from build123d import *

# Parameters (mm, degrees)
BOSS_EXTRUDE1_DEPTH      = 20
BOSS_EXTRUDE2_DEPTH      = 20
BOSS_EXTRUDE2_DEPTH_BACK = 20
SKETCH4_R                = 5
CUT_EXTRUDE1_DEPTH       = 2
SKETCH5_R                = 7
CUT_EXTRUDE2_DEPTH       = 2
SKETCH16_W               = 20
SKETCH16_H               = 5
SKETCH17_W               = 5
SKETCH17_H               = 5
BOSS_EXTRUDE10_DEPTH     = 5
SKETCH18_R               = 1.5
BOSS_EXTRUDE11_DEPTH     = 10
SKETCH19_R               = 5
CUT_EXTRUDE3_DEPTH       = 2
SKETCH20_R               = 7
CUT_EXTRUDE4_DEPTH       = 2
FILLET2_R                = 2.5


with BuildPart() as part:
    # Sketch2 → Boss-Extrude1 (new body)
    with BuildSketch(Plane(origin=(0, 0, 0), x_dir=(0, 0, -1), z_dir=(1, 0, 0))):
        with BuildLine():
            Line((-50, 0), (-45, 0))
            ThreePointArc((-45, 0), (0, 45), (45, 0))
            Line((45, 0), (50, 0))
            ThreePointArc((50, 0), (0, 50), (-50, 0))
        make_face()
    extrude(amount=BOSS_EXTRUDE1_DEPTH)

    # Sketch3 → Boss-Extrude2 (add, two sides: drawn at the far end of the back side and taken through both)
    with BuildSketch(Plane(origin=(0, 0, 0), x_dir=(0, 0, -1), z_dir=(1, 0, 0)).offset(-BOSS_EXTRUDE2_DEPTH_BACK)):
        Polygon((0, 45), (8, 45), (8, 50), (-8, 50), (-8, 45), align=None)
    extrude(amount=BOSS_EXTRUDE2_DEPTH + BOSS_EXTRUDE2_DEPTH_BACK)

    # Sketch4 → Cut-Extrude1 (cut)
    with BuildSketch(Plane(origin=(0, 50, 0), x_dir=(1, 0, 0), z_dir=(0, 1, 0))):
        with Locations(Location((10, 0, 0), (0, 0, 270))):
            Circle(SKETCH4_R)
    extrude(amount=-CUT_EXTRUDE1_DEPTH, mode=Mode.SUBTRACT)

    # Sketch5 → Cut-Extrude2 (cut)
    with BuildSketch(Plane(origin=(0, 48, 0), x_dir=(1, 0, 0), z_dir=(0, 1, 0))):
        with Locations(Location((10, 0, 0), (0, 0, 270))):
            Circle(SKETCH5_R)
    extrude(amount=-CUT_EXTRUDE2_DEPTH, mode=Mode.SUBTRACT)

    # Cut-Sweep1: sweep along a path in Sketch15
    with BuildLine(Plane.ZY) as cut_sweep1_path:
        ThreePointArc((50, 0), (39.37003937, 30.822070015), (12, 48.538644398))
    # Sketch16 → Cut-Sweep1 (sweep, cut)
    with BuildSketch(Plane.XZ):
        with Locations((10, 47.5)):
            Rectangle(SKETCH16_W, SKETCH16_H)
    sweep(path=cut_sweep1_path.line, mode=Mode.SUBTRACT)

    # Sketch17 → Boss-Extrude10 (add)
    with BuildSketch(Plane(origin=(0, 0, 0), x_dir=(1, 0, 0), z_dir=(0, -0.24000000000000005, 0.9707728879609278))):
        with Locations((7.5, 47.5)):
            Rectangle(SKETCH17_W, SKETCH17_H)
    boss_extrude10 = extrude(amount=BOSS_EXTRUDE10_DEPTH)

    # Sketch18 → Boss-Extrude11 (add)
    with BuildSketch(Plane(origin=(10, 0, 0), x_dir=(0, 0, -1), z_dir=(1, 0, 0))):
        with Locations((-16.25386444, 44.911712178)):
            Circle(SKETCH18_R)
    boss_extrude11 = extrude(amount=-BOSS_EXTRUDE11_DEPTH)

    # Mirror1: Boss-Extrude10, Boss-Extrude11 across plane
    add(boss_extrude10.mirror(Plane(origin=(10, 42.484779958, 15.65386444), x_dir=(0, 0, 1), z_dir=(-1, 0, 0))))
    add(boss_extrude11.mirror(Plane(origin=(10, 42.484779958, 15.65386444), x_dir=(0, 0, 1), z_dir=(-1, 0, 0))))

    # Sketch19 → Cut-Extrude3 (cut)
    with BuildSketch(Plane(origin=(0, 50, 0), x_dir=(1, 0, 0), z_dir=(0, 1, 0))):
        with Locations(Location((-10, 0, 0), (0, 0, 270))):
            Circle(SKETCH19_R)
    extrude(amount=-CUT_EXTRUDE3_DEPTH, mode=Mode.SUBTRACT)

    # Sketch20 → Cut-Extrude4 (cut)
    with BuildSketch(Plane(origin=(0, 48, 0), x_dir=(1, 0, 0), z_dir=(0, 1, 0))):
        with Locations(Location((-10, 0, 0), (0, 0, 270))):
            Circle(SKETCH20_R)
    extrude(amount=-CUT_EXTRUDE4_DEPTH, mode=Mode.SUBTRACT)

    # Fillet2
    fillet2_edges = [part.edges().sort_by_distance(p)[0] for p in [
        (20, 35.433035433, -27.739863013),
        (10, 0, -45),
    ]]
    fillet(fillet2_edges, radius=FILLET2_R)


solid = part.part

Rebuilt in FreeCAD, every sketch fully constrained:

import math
import FreeCAD as App
import Part
import Sketcher
Q = App.Units.Quantity


def edges_at(feature, points):
    """Names of the edges that pass closest to the given points."""
    edges = feature.Shape.Edges
    near = lambda p: min(range(len(edges)), key=lambda i: edges[i].distToShape(Part.Vertex(*p))[0])
    return sorted({f"Edge{near(p) + 1}" for p in points})

doc = App.newDocument("Part")
body = doc.addObject("PartDesign::Body", "Body")

sketch1 = body.newObject("Sketcher::SketchObject", "Sketch")
sketch1.AttachmentSupport = (doc.getObject("YZ_Plane"), [""])
sketch1.MapMode = "FlatFace"
sketch1.addGeometry(Part.LineSegment(App.Vector(0, 50, 0), App.Vector(0, 45, 0)), False)
sketch1.addGeometry(Part.ArcOfCircle(Part.Circle(App.Vector(0, 0, 0), App.Vector(0, 0, 1), 45), math.radians(-90), math.radians(90)), False)
sketch1.addGeometry(Part.LineSegment(App.Vector(0, -45, 0), App.Vector(0, -50, 0)), False)
sketch1.addGeometry(Part.ArcOfCircle(Part.Circle(App.Vector(0, 0, 0), App.Vector(0, 0, 1), 50), math.radians(-90), math.radians(90)), False)
sketch1.addConstraint(Sketcher.Constraint("Coincident", 0, 2, 1, 2))
sketch1.addConstraint(Sketcher.Constraint("Coincident", 1, 1, 2, 1))
sketch1.addConstraint(Sketcher.Constraint("Coincident", 2, 2, 3, 1))
sketch1.addConstraint(Sketcher.Constraint("Coincident", 3, 2, 0, 1))
sketch1.addConstraint(Sketcher.Constraint("Vertical", 0))
sketch1.addConstraint(Sketcher.Constraint("Vertical", 2))
sketch1.addConstraint(Sketcher.Constraint("Coincident", 1, 3, -1, 1))
sketch1.addConstraint(Sketcher.Constraint("Coincident", 3, 3, -1, 1))
sketch1.addConstraint(Sketcher.Constraint("PointOnObject", 0, 2, -2))
sketch1.addConstraint(Sketcher.Constraint("PointOnObject", 1, 1, -2))
sketch1.addConstraint(Sketcher.Constraint("Radius", 1, Q("45 mm")))
sketch1.addConstraint(Sketcher.Constraint("Radius", 3, Q("50 mm")))
pad1 = body.newObject("PartDesign::Pad", "Pad")
pad1.Profile = sketch1
pad1.Length = 20

sketch2 = body.newObject("Sketcher::SketchObject", "Sketch001")
sketch2.AttachmentSupport = (doc.getObject("YZ_Plane"), [""])
sketch2.MapMode = "FlatFace"
sketch2.addGeometry(Part.LineSegment(App.Vector(45, -8, 0), App.Vector(50, -8, 0)), False)
sketch2.addGeometry(Part.LineSegment(App.Vector(50, -8, 0), App.Vector(50, 8, 0)), False)
sketch2.addGeometry(Part.LineSegment(App.Vector(50, 8, 0), App.Vector(45, 8, 0)), False)
sketch2.addGeometry(Part.LineSegment(App.Vector(45, 8, 0), App.Vector(45, -8, 0)), False)
sketch2.addConstraint(Sketcher.Constraint("Coincident", 0, 2, 1, 1))
sketch2.addConstraint(Sketcher.Constraint("Coincident", 1, 2, 2, 1))
sketch2.addConstraint(Sketcher.Constraint("Coincident", 2, 2, 3, 1))
sketch2.addConstraint(Sketcher.Constraint("Coincident", 3, 2, 0, 1))
sketch2.addConstraint(Sketcher.Constraint("Horizontal", 0))
sketch2.addConstraint(Sketcher.Constraint("Vertical", 1))
sketch2.addConstraint(Sketcher.Constraint("Horizontal", 2))
sketch2.addConstraint(Sketcher.Constraint("Vertical", 3))
sketch2.addConstraint(Sketcher.Constraint("DistanceX", 0, 1, 0, 2, Q("5 mm")))
sketch2.addConstraint(Sketcher.Constraint("DistanceY", 1, 1, 1, 2, Q("16 mm")))
sketch2.addConstraint(Sketcher.Constraint("DistanceX", -1, 1, 0, 2, Q("50 mm")))
sketch2.addConstraint(Sketcher.Constraint("DistanceY", 0, 2, -1, 1, Q("8 mm")))
pad2 = body.newObject("PartDesign::Pad", "Pad001")
pad2.Profile = sketch2
pad2.Type = "TwoLengths"
pad2.Length = 20
pad2.Length2 = 20

sketch3 = body.newObject("Sketcher::SketchObject", "Sketch002")
sketch3.AttachmentSupport = (doc.getObject("XZ_Plane"), [""])
sketch3.MapMode = "FlatFace"
sketch3.AttachmentOffset = App.Placement(App.Vector(0, 0, -50), App.Rotation())
sketch3.addGeometry(Part.Circle(App.Vector(10, 0, 0), App.Vector(0, 0, 1), 5), False)
sketch3.addConstraint(Sketcher.Constraint("PointOnObject", 0, 3, -1))
sketch3.addConstraint(Sketcher.Constraint("Diameter", 0, Q("10 mm")))
sketch3.addConstraint(Sketcher.Constraint("DistanceX", -1, 1, 0, 3, Q("10 mm")))
pocket1 = body.newObject("PartDesign::Pocket", "Pocket")
pocket1.Profile = sketch3
pocket1.Length = 2
pocket1.Reversed = True

sketch4 = body.newObject("Sketcher::SketchObject", "Sketch003")
sketch4.AttachmentSupport = (doc.getObject("XZ_Plane"), [""])
sketch4.MapMode = "FlatFace"
sketch4.AttachmentOffset = App.Placement(App.Vector(0, 0, -48), App.Rotation())
sketch4.addGeometry(Part.Circle(App.Vector(10, 0, 0), App.Vector(0, 0, 1), 7), False)
sketch4.addConstraint(Sketcher.Constraint("PointOnObject", 0, 3, -1))
sketch4.addConstraint(Sketcher.Constraint("Diameter", 0, Q("14 mm")))
sketch4.addConstraint(Sketcher.Constraint("DistanceX", -1, 1, 0, 3, Q("10 mm")))
pocket2 = body.newObject("PartDesign::Pocket", "Pocket001")
pocket2.Profile = sketch4
pocket2.Length = 2
pocket2.Reversed = True

sketch5 = body.newObject("Sketcher::SketchObject", "Sketch004")
sketch5.AttachmentSupport = (doc.getObject("XZ_Plane"), [""])
sketch5.MapMode = "FlatFace"
sketch5.addGeometry(Part.LineSegment(App.Vector(0, 50, 0), App.Vector(0, 45, 0)), False)
sketch5.addGeometry(Part.LineSegment(App.Vector(0, 45, 0), App.Vector(20, 45, 0)), False)
sketch5.addGeometry(Part.LineSegment(App.Vector(20, 45, 0), App.Vector(20, 50, 0)), False)
sketch5.addGeometry(Part.LineSegment(App.Vector(20, 50, 0), App.Vector(0, 50, 0)), False)
sketch5.addConstraint(Sketcher.Constraint("Coincident", 0, 2, 1, 1))
sketch5.addConstraint(Sketcher.Constraint("Coincident", 1, 2, 2, 1))
sketch5.addConstraint(Sketcher.Constraint("Coincident", 2, 2, 3, 1))
sketch5.addConstraint(Sketcher.Constraint("Coincident", 3, 2, 0, 1))
sketch5.addConstraint(Sketcher.Constraint("Vertical", 0))
sketch5.addConstraint(Sketcher.Constraint("Horizontal", 1))
sketch5.addConstraint(Sketcher.Constraint("Vertical", 2))
sketch5.addConstraint(Sketcher.Constraint("Horizontal", 3))
sketch5.addConstraint(Sketcher.Constraint("PointOnObject", 0, 2, -2))
sketch5.addConstraint(Sketcher.Constraint("DistanceX", 1, 1, 1, 2, Q("20 mm")))
sketch5.addConstraint(Sketcher.Constraint("DistanceY", 0, 2, 0, 1, Q("5 mm")))
sketch5.addConstraint(Sketcher.Constraint("DistanceY", -1, 1, 0, 2, Q("45 mm")))

sketch6 = body.newObject("Sketcher::SketchObject", "Sketch005")
sketch6.AttachmentSupport = (doc.getObject("YZ_Plane"), [""])
sketch6.MapMode = "FlatFace"
sketch6.addGeometry(Part.ArcOfCircle(Part.Circle(App.Vector(0, 0, 0), App.Vector(0, 0, 1), 50), math.radians(13.88654), math.radians(90)), False)
sketch6.addConstraint(Sketcher.Constraint("Coincident", 0, 3, -1, 1))
sketch6.addConstraint(Sketcher.Constraint("PointOnObject", 0, 2, -2))
sketch6.addConstraint(Sketcher.Constraint("Radius", 0, Q("50 mm")))
sketch6.addConstraint(Sketcher.Constraint("DistanceY", -1, 1, 0, 1, Q("12 mm")))
doc.recompute()

subtractivepipe = body.newObject("PartDesign::SubtractivePipe", "SubtractivePipe")
subtractivepipe.Profile = sketch5
subtractivepipe.Spine = (sketch6, ["Edge1"])

sketch7 = body.newObject("Sketcher::SketchObject", "Sketch006")
sketch7.Placement = App.Placement(App.Vector(0, 0, 0), App.Rotation(App.Vector(1, 0, 0), App.Vector(0, 0.970772888, 0.24), App.Vector(0, -0.24, 0.970772888), "ZXY"))
sketch7.addGeometry(Part.LineSegment(App.Vector(5, 50, 0), App.Vector(5, 45, 0)), False)
sketch7.addGeometry(Part.LineSegment(App.Vector(5, 45, 0), App.Vector(10, 45, 0)), False)
sketch7.addGeometry(Part.LineSegment(App.Vector(10, 45, 0), App.Vector(10, 50, 0)), False)
sketch7.addGeometry(Part.LineSegment(App.Vector(10, 50, 0), App.Vector(5, 50, 0)), False)
sketch7.addConstraint(Sketcher.Constraint("Coincident", 0, 2, 1, 1))
sketch7.addConstraint(Sketcher.Constraint("Coincident", 1, 2, 2, 1))
sketch7.addConstraint(Sketcher.Constraint("Coincident", 2, 2, 3, 1))
sketch7.addConstraint(Sketcher.Constraint("Coincident", 3, 2, 0, 1))
sketch7.addConstraint(Sketcher.Constraint("Vertical", 0))
sketch7.addConstraint(Sketcher.Constraint("Horizontal", 1))
sketch7.addConstraint(Sketcher.Constraint("Vertical", 2))
sketch7.addConstraint(Sketcher.Constraint("Horizontal", 3))
sketch7.addConstraint(Sketcher.Constraint("Equal", 3, 0))
sketch7.addConstraint(Sketcher.Constraint("DistanceX", 1, 1, 1, 2, Q("5 mm")))
sketch7.addConstraint(Sketcher.Constraint("DistanceX", -1, 1, 0, 2, Q("5 mm")))
sketch7.addConstraint(Sketcher.Constraint("DistanceY", -1, 1, 0, 2, Q("45 mm")))
pad3 = body.newObject("PartDesign::Pad", "Pad002")
pad3.Profile = sketch7
pad3.Length = 5

sketch8 = body.newObject("Sketcher::SketchObject", "Sketch007")
sketch8.AttachmentSupport = (doc.getObject("YZ_Plane"), [""])
sketch8.MapMode = "FlatFace"
sketch8.AttachmentOffset = App.Placement(App.Vector(0, 0, 10), App.Rotation())
sketch8.addGeometry(Part.Circle(App.Vector(44.911712, 16.253864, 0), App.Vector(0, 0, 1), 1.5), False)
sketch8.addConstraint(Sketcher.Constraint("Diameter", 0, Q("3 mm")))
sketch8.addConstraint(Sketcher.Constraint("DistanceX", -1, 1, 0, 3, Q("44.911712 mm")))
sketch8.addConstraint(Sketcher.Constraint("DistanceY", -1, 1, 0, 3, Q("16.253864 mm")))
pad4 = body.newObject("PartDesign::Pad", "Pad003")
pad4.Profile = sketch8
pad4.Length = 10
pad4.Reversed = True
doc.recompute()

datumplane = body.newObject("PartDesign::Plane", "DatumPlane")
datumplane.AttachmentSupport = (doc.getObject("YZ_Plane"), [""])
datumplane.MapMode = "FlatFace"
datumplane.AttachmentOffset = App.Placement(App.Vector(0, 0, 10), App.Rotation())
mirrored = body.newObject("PartDesign::Mirrored", "Mirrored")
mirrored.Originals = [pad3, pad4]
mirrored.MirrorPlane = (datumplane, [""])
body.Tip = mirrored

sketch9 = body.newObject("Sketcher::SketchObject", "Sketch008")
sketch9.AttachmentSupport = (doc.getObject("XZ_Plane"), [""])
sketch9.MapMode = "FlatFace"
sketch9.AttachmentOffset = App.Placement(App.Vector(0, 0, -50), App.Rotation())
sketch9.addGeometry(Part.Circle(App.Vector(-10, 0, 0), App.Vector(0, 0, 1), 5), False)
sketch9.addConstraint(Sketcher.Constraint("PointOnObject", 0, 3, -1))
sketch9.addConstraint(Sketcher.Constraint("Diameter", 0, Q("10 mm")))
sketch9.addConstraint(Sketcher.Constraint("DistanceX", 0, 3, -1, 1, Q("10 mm")))
pocket3 = body.newObject("PartDesign::Pocket", "Pocket002")
pocket3.Profile = sketch9
pocket3.Length = 2
pocket3.Reversed = True

sketch10 = body.newObject("Sketcher::SketchObject", "Sketch009")
sketch10.AttachmentSupport = (doc.getObject("XZ_Plane"), [""])
sketch10.MapMode = "FlatFace"
sketch10.AttachmentOffset = App.Placement(App.Vector(0, 0, -48), App.Rotation())
sketch10.addGeometry(Part.Circle(App.Vector(-10, 0, 0), App.Vector(0, 0, 1), 7), False)
sketch10.addConstraint(Sketcher.Constraint("PointOnObject", 0, 3, -1))
sketch10.addConstraint(Sketcher.Constraint("Diameter", 0, Q("14 mm")))
sketch10.addConstraint(Sketcher.Constraint("DistanceX", 0, 3, -1, 1, Q("10 mm")))
pocket4 = body.newObject("PartDesign::Pocket", "Pocket003")
pocket4.Profile = sketch10
pocket4.Length = 2
pocket4.Reversed = True
doc.recompute()

fillet = body.newObject("PartDesign::Fillet", "Fillet")
fillet.Base = (pocket4, edges_at(pocket4, [(20, 35.433, -27.74), (10, 0, -45)]))
fillet.Radius = 2.5

doc.recompute()
